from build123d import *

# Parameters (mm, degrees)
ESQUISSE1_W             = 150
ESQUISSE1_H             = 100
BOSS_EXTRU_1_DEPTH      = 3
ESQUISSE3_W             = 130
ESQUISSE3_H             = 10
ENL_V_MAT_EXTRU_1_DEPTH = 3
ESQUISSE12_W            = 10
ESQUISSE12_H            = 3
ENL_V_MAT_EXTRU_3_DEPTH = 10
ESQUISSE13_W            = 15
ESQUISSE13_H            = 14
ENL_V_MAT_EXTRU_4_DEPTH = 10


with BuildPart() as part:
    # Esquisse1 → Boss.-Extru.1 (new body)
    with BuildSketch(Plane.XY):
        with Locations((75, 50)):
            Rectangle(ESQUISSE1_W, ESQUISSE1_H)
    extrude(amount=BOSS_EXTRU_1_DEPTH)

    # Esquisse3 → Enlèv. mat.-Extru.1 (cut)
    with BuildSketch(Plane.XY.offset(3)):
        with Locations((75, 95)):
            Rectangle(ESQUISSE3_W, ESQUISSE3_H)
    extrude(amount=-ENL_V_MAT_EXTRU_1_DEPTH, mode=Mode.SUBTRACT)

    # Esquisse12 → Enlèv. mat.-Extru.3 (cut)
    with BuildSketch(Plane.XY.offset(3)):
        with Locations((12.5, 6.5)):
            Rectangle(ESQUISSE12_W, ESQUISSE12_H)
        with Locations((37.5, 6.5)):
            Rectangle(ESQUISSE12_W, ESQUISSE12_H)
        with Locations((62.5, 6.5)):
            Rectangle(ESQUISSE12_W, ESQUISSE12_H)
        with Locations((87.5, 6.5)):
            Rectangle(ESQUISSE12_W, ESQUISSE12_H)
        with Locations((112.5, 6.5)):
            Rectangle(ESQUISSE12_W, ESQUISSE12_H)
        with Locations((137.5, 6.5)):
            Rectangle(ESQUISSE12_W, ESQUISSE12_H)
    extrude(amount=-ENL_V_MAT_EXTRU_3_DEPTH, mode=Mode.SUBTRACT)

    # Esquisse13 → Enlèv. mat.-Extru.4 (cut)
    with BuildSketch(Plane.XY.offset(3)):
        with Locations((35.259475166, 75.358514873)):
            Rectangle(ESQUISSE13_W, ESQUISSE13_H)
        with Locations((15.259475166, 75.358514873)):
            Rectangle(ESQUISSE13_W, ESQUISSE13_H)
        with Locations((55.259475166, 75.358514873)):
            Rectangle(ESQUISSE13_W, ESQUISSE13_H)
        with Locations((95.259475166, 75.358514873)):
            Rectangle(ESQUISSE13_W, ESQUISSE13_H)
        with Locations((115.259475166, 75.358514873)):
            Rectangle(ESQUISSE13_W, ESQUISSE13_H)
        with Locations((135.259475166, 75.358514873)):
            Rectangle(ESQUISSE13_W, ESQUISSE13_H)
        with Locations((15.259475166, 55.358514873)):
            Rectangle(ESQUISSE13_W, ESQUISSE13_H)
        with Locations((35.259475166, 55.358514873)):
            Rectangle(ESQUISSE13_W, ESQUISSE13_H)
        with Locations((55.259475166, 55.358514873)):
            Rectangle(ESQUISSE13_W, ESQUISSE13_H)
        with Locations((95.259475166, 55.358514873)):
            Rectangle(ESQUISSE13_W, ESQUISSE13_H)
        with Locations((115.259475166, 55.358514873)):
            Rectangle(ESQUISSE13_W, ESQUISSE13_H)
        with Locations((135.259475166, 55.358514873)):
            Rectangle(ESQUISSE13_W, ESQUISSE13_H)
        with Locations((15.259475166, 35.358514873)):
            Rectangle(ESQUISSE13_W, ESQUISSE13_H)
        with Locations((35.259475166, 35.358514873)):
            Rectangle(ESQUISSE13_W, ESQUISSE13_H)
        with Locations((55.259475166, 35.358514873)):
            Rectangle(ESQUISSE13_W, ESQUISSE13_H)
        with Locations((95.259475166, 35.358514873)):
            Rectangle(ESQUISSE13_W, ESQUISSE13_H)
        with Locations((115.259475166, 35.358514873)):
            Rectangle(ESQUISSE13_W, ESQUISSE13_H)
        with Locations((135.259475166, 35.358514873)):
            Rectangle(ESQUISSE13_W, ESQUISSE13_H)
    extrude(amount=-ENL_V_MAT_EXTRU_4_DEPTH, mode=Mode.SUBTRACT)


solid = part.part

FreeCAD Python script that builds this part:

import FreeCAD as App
import Part
import Sketcher
from FreeCAD import Vector
Q = App.Units.Quantity


def add_polygon(sketch, points):
    """Adds a closed chain of lines whose ends are joined by coincident constraints."""
    first, n = sketch.GeometryCount, len(points)
    for a, b in zip(points, points[1:] + points[:1]):
        sketch.addGeometry(Part.LineSegment(App.Vector(*a, 0), App.Vector(*b, 0)), False)
    for i in range(n):
        sketch.addConstraint(Sketcher.Constraint("Coincident", first + i, 2, first + (i + 1) % n, 1))

doc = App.newDocument("Part")
body = doc.addObject("PartDesign::Body", "Body")

sketch1 = body.newObject("Sketcher::SketchObject", "Sketch")
sketch1.AttachmentSupport = (doc.getObject("XY_Plane"), [""])
sketch1.MapMode = "FlatFace"
add_polygon(sketch1, [(0, 100), (0, 0), (150, 0), (150, 100)])
sketch1.addConstraint(Sketcher.Constraint("Vertical", 0))
sketch1.addConstraint(Sketcher.Constraint("Horizontal", 1))
sketch1.addConstraint(Sketcher.Constraint("Vertical", 2))
sketch1.addConstraint(Sketcher.Constraint("Horizontal", 3))
sketch1.addConstraint(Sketcher.Constraint("Coincident", 0, 2, -1, 1))
sketch1.addConstraint(Sketcher.Constraint("DistanceX", 1, 1, 1, 2, Q("150 mm")))
sketch1.addConstraint(Sketcher.Constraint("DistanceY", 0, 2, 0, 1, Q("100 mm")))
pad1 = body.newObject("PartDesign::Pad", "Pad")
pad1.Profile = sketch1
pad1.Length = 3

sketch2 = body.newObject("Sketcher::SketchObject", "Sketch001")
sketch2.AttachmentSupport = (doc.getObject("XY_Plane"), [""])
sketch2.MapMode = "FlatFace"
sketch2.AttachmentOffset = App.Placement(Vector(0, 0, 3), App.Rotation())
add_polygon(sketch2, [(10, 100), (10, 90), (140, 90), (140, 100)])
sketch2.addConstraint(Sketcher.Constraint("Vertical", 0))
sketch2.addConstraint(Sketcher.Constraint("Horizontal", 1))
sketch2.addConstraint(Sketcher.Constraint("Vertical", 2))
sketch2.addConstraint(Sketcher.Constraint("Horizontal", 3))
sketch2.addConstraint(Sketcher.Constraint("DistanceX", 1, 1, 1, 2, Q("130 mm")))
sketch2.addConstraint(Sketcher.Constraint("DistanceY", 0, 2, 0, 1, Q("10 mm")))
sketch2.addConstraint(Sketcher.Constraint("DistanceX", -1, 1, 0, 2, Q("10 mm")))
sketch2.addConstraint(Sketcher.Constraint("DistanceY", -1, 1, 0, 2, Q("90 mm")))
pocket1 = body.newObject("PartDesign::Pocket", "Pocket")
pocket1.Profile = sketch2
pocket1.Length = 3

sketch3 = body.newObject("Sketcher::SketchObject", "Sketch002")
sketch3.AttachmentSupport = (doc.getObject("XY_Plane"), [""])
sketch3.MapMode = "FlatFace"
sketch3.AttachmentOffset = App.Placement(Vector(0, 0, 3), App.Rotation())
add_polygon(sketch3, [(7.5, 8), (7.5, 5), (17.5, 5), (17.5, 8)])
add_polygon(sketch3, [(32.5, 8), (32.5, 5), (42.5, 5), (42.5, 8)])
add_polygon(sketch3, [(57.5, 8), (57.5, 5), (67.5, 5), (67.5, 8)])
add_polygon(sketch3, [(82.5, 8), (82.5, 5), (92.5, 5), (92.5, 8)])
add_polygon(sketch3, [(107.5, 8), (107.5, 5), (117.5, 5), (117.5, 8)])
add_polygon(sketch3, [(132.5, 8), (132.5, 5), (142.5, 5), (142.5, 8)])
sketch3.addConstraint(Sketcher.Constraint("Vertical", 0))
sketch3.addConstraint(Sketcher.Constraint("Horizontal", 1))
sketch3.addConstraint(Sketcher.Constraint("Vertical", 2))
sketch3.addConstraint(Sketcher.Constraint("Horizontal", 3))
sketch3.addConstraint(Sketcher.Constraint("Vertical", 4))
sketch3.addConstraint(Sketcher.Constraint("Horizontal", 5))
sketch3.addConstraint(Sketcher.Constraint("Vertical", 6))
sketch3.addConstraint(Sketcher.Constraint("Horizontal", 7))
sketch3.addConstraint(Sketcher.Constraint("Vertical", 8))
sketch3.addConstraint(Sketcher.Constraint("Horizontal", 9))
sketch3.addConstraint(Sketcher.Constraint("Vertical", 10))
sketch3.addConstraint(Sketcher.Constraint("Horizontal", 11))
sketch3.addConstraint(Sketcher.Constraint("Vertical", 12))
sketch3.addConstraint(Sketcher.Constraint("Horizontal", 13))
sketch3.addConstraint(Sketcher.Constraint("Vertical", 14))
sketch3.addConstraint(Sketcher.Constraint("Horizontal", 15))
sketch3.addConstraint(Sketcher.Constraint("Vertical", 16))
sketch3.addConstraint(Sketcher.Constraint("Horizontal", 17))
sketch3.addConstraint(Sketcher.Constraint("Vertical", 18))
sketch3.addConstraint(Sketcher.Constraint("Horizontal", 19))
sketch3.addConstraint(Sketcher.Constraint("Vertical", 20))
sketch3.addConstraint(Sketcher.Constraint("Horizontal", 21))
sketch3.addConstraint(Sketcher.Constraint("Vertical", 22))
sketch3.addConstraint(Sketcher.Constraint("Horizontal", 23))
sketch3.addConstraint(Sketcher.Constraint("Horizontal", 1, 2, 4, 2))
sketch3.addConstraint(Sketcher.Constraint("Horizontal", 3, 2, 6, 2))
sketch3.addConstraint(Sketcher.Constraint("Horizontal", 5, 2, 8, 2))
sketch3.addConstraint(Sketcher.Constraint("Horizontal", 7, 2, 10, 2))
sketch3.addConstraint(Sketcher.Constraint("Horizontal", 9, 2, 12, 2))
sketch3.addConstraint(Sketcher.Constraint("Horizontal", 11, 2, 14, 2))
sketch3.addConstraint(Sketcher.Constraint("Horizontal", 13, 2, 16, 2))
sketch3.addConstraint(Sketcher.Constraint("Horizontal", 15, 2, 18, 2))
sketch3.addConstraint(Sketcher.Constraint("Horizontal", 17, 2, 20, 2))
sketch3.addConstraint(Sketcher.Constraint("Horizontal", 19, 2, 22, 2))
sketch3.addConstraint(Sketcher.Constraint("Equal", 3, 5))
sketch3.addConstraint(Sketcher.Constraint("Equal", 7, 9))
sketch3.addConstraint(Sketcher.Constraint("Equal", 11, 13))
sketch3.addConstraint(Sketcher.Constraint("Equal", 15, 17))
sketch3.addConstraint(Sketcher.Constraint("Equal", 19, 21))
sketch3.addConstraint(Sketcher.Constraint("DistanceX", 1, 1, 1, 2, Q("10 mm")))
sketch3.addConstraint(Sketcher.Constraint("DistanceY", 0, 2, 0, 1, Q("3 mm")))
sketch3.addConstraint(Sketcher.Constraint("DistanceY", -1, 1, 0, 2, Q("5 mm")))
sketch3.addConstraint(Sketcher.Constraint("DistanceX", 1, 2, 4, 2, Q("15 mm")))
sketch3.addConstraint(Sketcher.Constraint("DistanceX", 5, 2, 8, 2, Q("15 mm")))
sketch3.addConstraint(Sketcher.Constraint("DistanceX", 9, 2, 12, 2, Q("15 mm")))
sketch3.addConstraint(Sketcher.Constraint("DistanceX", 13, 2, 16, 2, Q("15 mm")))
sketch3.addConstraint(Sketcher.Constraint("DistanceX", 17, 2, 20, 2, Q("15 mm")))
sketch3.addConstraint(Sketcher.Constraint("DistanceX", -1, 1, 0, 2, Q("7.5 mm")))
pocket2 = body.newObject("PartDesign::Pocket", "Pocket001")
pocket2.Profile = sketch3
pocket2.Length = 10

sketch4 = body.newObject("Sketcher::SketchObject", "Sketch003")
sketch4.AttachmentSupport = (doc.getObject("XY_Plane"), [""])
sketch4.MapMode = "FlatFace"
sketch4.AttachmentOffset = App.Placement(Vector(0, 0, 3), App.Rotation())
add_polygon(sketch4, [(28, 82), (28, 68), (43, 68), (43, 82)])
add_polygon(sketch4, [(8, 82), (8, 68), (23, 68), (23, 82)])
add_polygon(sketch4, [(48, 82), (48, 68), (63, 68), (63, 82)])
add_polygon(sketch4, [(88, 82), (88, 68), (103, 68), (103, 82)])
add_polygon(sketch4, [(108, 82), (108, 68), (123, 68), (123, 82)])
add_polygon(sketch4, [(128, 82), (128, 68), (143, 68), (143, 82)])
add_polygon(sketch4, [(8, 62), (8, 48), (23, 48), (23, 62)])
add_polygon(sketch4, [(28, 62), (28, 48), (43, 48), (43, 62)])
add_polygon(sketch4, [(48, 62), (48, 48), (63, 48), (63, 62)])
add_polygon(sketch4, [(88, 62), (88, 48), (103, 48), (103, 62)])
add_polygon(sketch4, [(108, 62), (108, 48), (123, 48), (123, 62)])
add_polygon(sketch4, [(128, 62), (128, 48), (143, 48), (143, 62)])
add_polygon(sketch4, [(8, 42), (8, 28), (23, 28), (23, 42)])
add_polygon(sketch4, [(28, 42), (28, 28), (43, 28), (43, 42)])
add_polygon(sketch4, [(48, 42), (48, 28), (63, 28), (63, 42)])
add_polygon(sketch4, [(88, 42), (88, 28), (103, 28), (103, 42)])
add_polygon(sketch4, [(108, 42), (108, 28), (123, 28), (123, 42)])
add_polygon(sketch4, [(128, 42), (128, 28), (143, 28), (143, 42)])
sketch4.addConstraint(Sketcher.Constraint("Vertical", 0))
sketch4.addConstraint(Sketcher.Constraint("Horizontal", 1))
sketch4.addConstraint(Sketcher.Constraint("Vertical", 2))
sketch4.addConstraint(Sketcher.Constraint("Horizontal", 3))
sketch4.addConstraint(Sketcher.Constraint("Vertical", 4))
sketch4.addConstraint(Sketcher.Constraint("Horizontal", 5))
sketch4.addConstraint(Sketcher.Constraint("Vertical", 6))
sketch4.addConstraint(Sketcher.Constraint("Horizontal", 7))
sketch4.addConstraint(Sketcher.Constraint("Vertical", 8))
sketch4.addConstraint(Sketcher.Constraint("Horizontal", 9))
sketch4.addConstraint(Sketcher.Constraint("Vertical", 10))
sketch4.addConstraint(Sketcher.Constraint("Horizontal", 11))
sketch4.addConstraint(Sketcher.Constraint("Vertical", 12))
sketch4.addConstraint(Sketcher.Constraint("Horizontal", 13))
sketch4.addConstraint(Sketcher.Constraint("Vertical", 14))
sketch4.addConstraint(Sketcher.Constraint("Horizontal", 15))
sketch4.addConstraint(Sketcher.Constraint("Vertical", 16))
sketch4.addConstraint(Sketcher.Constraint("Horizontal", 17))
sketch4.addConstraint(Sketcher.Constraint("Vertical", 18))
sketch4.addConstraint(Sketcher.Constraint("Horizontal", 19))
sketch4.addConstraint(Sketcher.Constraint("Vertical", 20))
sketch4.addConstraint(Sketcher.Constraint("Horizontal", 21))
sketch4.addConstraint(Sketcher.Constraint("Vertical", 22))
sketch4.addConstraint(Sketcher.Constraint("Horizontal", 23))
sketch4.addConstraint(Sketcher.Constraint("Vertical", 24))
sketch4.addConstraint(Sketcher.Constraint("Horizontal", 25))
sketch4.addConstraint(Sketcher.Constraint("Vertical", 26))
sketch4.addConstraint(Sketcher.Constraint("Horizontal", 27))
sketch4.addConstraint(Sketcher.Constraint("Vertical", 28))
sketch4.addConstraint(Sketcher.Constraint("Horizontal", 29))
sketch4.addConstraint(Sketcher.Constraint("Vertical", 30))
sketch4.addConstraint(Sketcher.Constraint("Horizontal", 31))
sketch4.addConstraint(Sketcher.Constraint("Vertical", 32))
sketch4.addConstraint(Sketcher.Constraint("Horizontal", 33))
sketch4.addConstraint(Sketcher.Constraint("Vertical", 34))
sketch4.addConstraint(Sketcher.Constraint("Horizontal", 35))
sketch4.addConstraint(Sketcher.Constraint("Vertical", 36))
sketch4.addConstraint(Sketcher.Constraint("Horizontal", 37))
sketch4.addConstraint(Sketcher.Constraint("Vertical", 38))
sketch4.addConstraint(Sketcher.Constraint("Horizontal", 39))
sketch4.addConstraint(Sketcher.Constraint("Vertical", 40))
sketch4.addConstraint(Sketcher.Constraint("Horizontal", 41))
sketch4.addConstraint(Sketcher.Constraint("Vertical", 42))
sketch4.addConstraint(Sketcher.Constraint("Horizontal", 43))
sketch4.addConstraint(Sketcher.Constraint("Vertical", 44))
sketch4.addConstraint(Sketcher.Constraint("Horizontal", 45))
sketch4.addConstraint(Sketcher.Constraint("Vertical", 46))
sketch4.addConstraint(Sketcher.Constraint("Horizontal", 47))
sketch4.addConstraint(Sketcher.Constraint("Vertical", 48))
sketch4.addConstraint(Sketcher.Constraint("Horizontal", 49))
sketch4.addConstraint(Sketcher.Constraint("Vertical", 50))
sketch4.addConstraint(Sketcher.Constraint("Horizontal", 51))
sketch4.addConstraint(Sketcher.Constraint("Vertical", 52))
sketch4.addConstraint(Sketcher.Constraint("Horizontal", 53))
sketch4.addConstraint(Sketcher.Constraint("Vertical", 54))
sketch4.addConstraint(Sketcher.Constraint("Horizontal", 55))
sketch4.addConstraint(Sketcher.Constraint("Vertical", 56))
sketch4.addConstraint(Sketcher.Constraint("Horizontal", 57))
sketch4.addConstraint(Sketcher.Constraint("Vertical", 58))
sketch4.addConstraint(Sketcher.Constraint("Horizontal", 59))
sketch4.addConstraint(Sketcher.Constraint("Vertical", 60))
sketch4.addConstraint(Sketcher.Constraint("Horizontal", 61))
sketch4.addConstraint(Sketcher.Constraint("Vertical", 62))
sketch4.addConstraint(Sketcher.Constraint("Horizontal", 63))
sketch4.addConstraint(Sketcher.Constraint("Vertical", 64))
sketch4.addConstraint(Sketcher.Constraint("Horizontal", 65))
sketch4.addConstraint(Sketcher.Constraint("Vertical", 66))
sketch4.addConstraint(Sketcher.Constraint("Horizontal", 67))
sketch4.addConstraint(Sketcher.Constraint("Vertical", 68))
sketch4.addConstraint(Sketcher.Constraint("Horizontal", 69))
sketch4.addConstraint(Sketcher.Constraint("Vertical", 70))
sketch4.addConstraint(Sketcher.Constraint("Horizontal", 71))
sketch4.addConstraint(Sketcher.Constraint("Horizontal", 1, 2, 4, 2))
sketch4.addConstraint(Sketcher.Constraint("Horizontal", 3, 2, 6, 2))
sketch4.addConstraint(Sketcher.Constraint("Horizontal", 5, 2, 8, 2))
sketch4.addConstraint(Sketcher.Constraint("Horizontal", 7, 2, 10, 2))
sketch4.addConstraint(Sketcher.Constraint("Horizontal", 9, 2, 12, 2))
sketch4.addConstraint(Sketcher.Constraint("Horizontal", 11, 2, 14, 2))
sketch4.addConstraint(Sketcher.Constraint("Horizontal", 13, 2, 16, 2))
sketch4.addConstraint(Sketcher.Constraint("Horizontal", 15, 2, 18, 2))
sketch4.addConstraint(Sketcher.Constraint("Horizontal", 17, 2, 20, 2))
sketch4.addConstraint(Sketcher.Constraint("Horizontal", 19, 2, 22, 2))
sketch4.addConstraint(Sketcher.Constraint("Horizontal", 25, 2, 28, 2))
sketch4.addConstraint(Sketcher.Constraint("Horizontal", 27, 2, 30, 2))
sketch4.addConstraint(Sketcher.Constraint("Horizontal", 29, 2, 32, 2))
sketch4.addConstraint(Sketcher.Constraint("Horizontal", 31, 2, 34, 2))
sketch4.addConstraint(Sketcher.Constraint("Horizontal", 33, 2, 36, 2))
sketch4.addConstraint(Sketcher.Constraint("Horizontal", 35, 2, 38, 2))
sketch4.addConstraint(Sketcher.Constraint("Horizontal", 37, 2, 40, 2))
sketch4.addConstraint(Sketcher.Constraint("Horizontal", 39, 2, 42, 2))
sketch4.addConstraint(Sketcher.Constraint("Horizontal", 41, 2, 44, 2))
sketch4.addConstraint(Sketcher.Constraint("Horizontal", 43, 2, 46, 2))
sketch4.addConstraint(Sketcher.Constraint("Horizontal", 49, 2, 52, 2))
sketch4.addConstraint(Sketcher.Constraint("Horizontal", 51, 2, 54, 2))
sketch4.addConstraint(Sketcher.Constraint("Horizontal", 53, 2, 56, 2))
sketch4.addConstraint(Sketcher.Constraint("Horizontal", 55, 2, 58, 2))
sketch4.addConstraint(Sketcher.Constraint("Horizontal", 57, 2, 60, 2))
sketch4.addConstraint(Sketcher.Constraint("Horizontal", 59, 2, 62, 2))
sketch4.addConstraint(Sketcher.Constraint("Horizontal", 61, 2, 64, 2))
sketch4.addConstraint(Sketcher.Constraint("Horizontal", 63, 2, 66, 2))
sketch4.addConstraint(Sketcher.Constraint("Horizontal", 65, 2, 68, 2))
sketch4.addConstraint(Sketcher.Constraint("Horizontal", 67, 2, 70, 2))
sketch4.addConstraint(Sketcher.Constraint("Vertical", 7, 2, 24, 2))
sketch4.addConstraint(Sketcher.Constraint("Vertical", 6, 2, 25, 2))
sketch4.addConstraint(Sketcher.Constraint("Vertical", 3, 2, 28, 2))
sketch4.addConstraint(Sketcher.Constraint("Vertical", 2, 2, 29, 2))
sketch4.addConstraint(Sketcher.Constraint("Vertical", 11, 2, 32, 2))
sketch4.addConstraint(Sketcher.Constraint("Vertical", 10, 2, 33, 2))
sketch4.addConstraint(Sketcher.Constraint("Vertical", 15, 2, 36, 2))
sketch4.addConstraint(Sketcher.Constraint("Vertical", 14, 2, 37, 2))
sketch4.addConstraint(Sketcher.Constraint("Vertical", 19, 2, 40, 2))
sketch4.addConstraint(Sketcher.Constraint("Vertical", 18, 2, 41, 2))
sketch4.addConstraint(Sketcher.Constraint("Vertical", 23, 2, 44, 2))
sketch4.addConstraint(Sketcher.Constraint("Vertical", 22, 2, 45, 2))
sketch4.addConstraint(Sketcher.Constraint("Vertical", 27, 2, 48, 2))
sketch4.addConstraint(Sketcher.Constraint("Vertical", 26, 2, 49, 2))
sketch4.addConstraint(Sketcher.Constraint("Vertical", 31, 2, 52, 2))
sketch4.addConstraint(Sketcher.Constraint("Vertical", 30, 2, 53, 2))
sketch4.addConstraint(Sketcher.Constraint("Vertical", 35, 2, 56, 2))
sketch4.addConstraint(Sketcher.Constraint("Vertical", 34, 2, 57, 2))
sketch4.addConstraint(Sketcher.Constraint("Vertical", 39, 2, 60, 2))
sketch4.addConstraint(Sketcher.Constraint("Vertical", 38, 2, 61, 2))
sketch4.addConstraint(Sketcher.Constraint("Vertical", 43, 2, 64, 2))
sketch4.addConstraint(Sketcher.Constraint("Vertical", 42, 2, 65, 2))
sketch4.addConstraint(Sketcher.Constraint("Vertical", 47, 2, 68, 2))
sketch4.addConstraint(Sketcher.Constraint("Vertical", 46, 2, 69, 2))
sketch4.addConstraint(Sketcher.Constraint("Equal", 3, 5))
sketch4.addConstraint(Sketcher.Constraint("Equal", 7, 9))
sketch4.addConstraint(Sketcher.Constraint("Equal", 11, 13))
sketch4.addConstraint(Sketcher.Constraint("Equal", 15, 17))
sketch4.addConstraint(Sketcher.Constraint("Equal", 19, 21))
sketch4.addConstraint(Sketcher.Constraint("Equal", 22, 24))
sketch4.addConstraint(Sketcher.Constraint("Equal", 46, 48))
sketch4.addConstraint(Sketcher.Constraint("DistanceX", 1, 1, 1, 2, Q("15 mm")))
sketch4.addConstraint(Sketcher.Constraint("DistanceY", 0, 2, 0, 1, Q("14 mm")))
sketch4.addConstraint(Sketcher.Constraint("DistanceX", -1, 1, 0, 2, Q("27.759475 mm")))
sketch4.addConstraint(Sketcher.Constraint("DistanceY", -1, 1, 0, 2, Q("68.358515 mm")))
sketch4.addConstraint(Sketcher.Constraint("DistanceX", -1, 1, 4, 2, Q("7.759475 mm")))
sketch4.addConstraint(Sketcher.Constraint("DistanceX", -1, 1, 8, 2, Q("47.759475 mm")))
sketch4.addConstraint(Sketcher.Constraint("DistanceX", -1, 1, 12, 2, Q("87.759475 mm")))
sketch4.addConstraint(Sketcher.Constraint("DistanceX", -1, 1, 16, 2, Q("107.759475 mm")))
sketch4.addConstraint(Sketcher.Constraint("DistanceX", -1, 1, 20, 2, Q("127.759475 mm")))
sketch4.addConstraint(Sketcher.Constraint("DistanceY", -1, 1, 24, 2, Q("48.358515 mm")))
sketch4.addConstraint(Sketcher.Constraint("DistanceY", -1, 1, 48, 2, Q("28.358515 mm")))
pocket3 = body.newObject("PartDesign::Pocket", "Pocket002")
pocket3.Profile = sketch4
pocket3.Length = 10

doc.recompute()
